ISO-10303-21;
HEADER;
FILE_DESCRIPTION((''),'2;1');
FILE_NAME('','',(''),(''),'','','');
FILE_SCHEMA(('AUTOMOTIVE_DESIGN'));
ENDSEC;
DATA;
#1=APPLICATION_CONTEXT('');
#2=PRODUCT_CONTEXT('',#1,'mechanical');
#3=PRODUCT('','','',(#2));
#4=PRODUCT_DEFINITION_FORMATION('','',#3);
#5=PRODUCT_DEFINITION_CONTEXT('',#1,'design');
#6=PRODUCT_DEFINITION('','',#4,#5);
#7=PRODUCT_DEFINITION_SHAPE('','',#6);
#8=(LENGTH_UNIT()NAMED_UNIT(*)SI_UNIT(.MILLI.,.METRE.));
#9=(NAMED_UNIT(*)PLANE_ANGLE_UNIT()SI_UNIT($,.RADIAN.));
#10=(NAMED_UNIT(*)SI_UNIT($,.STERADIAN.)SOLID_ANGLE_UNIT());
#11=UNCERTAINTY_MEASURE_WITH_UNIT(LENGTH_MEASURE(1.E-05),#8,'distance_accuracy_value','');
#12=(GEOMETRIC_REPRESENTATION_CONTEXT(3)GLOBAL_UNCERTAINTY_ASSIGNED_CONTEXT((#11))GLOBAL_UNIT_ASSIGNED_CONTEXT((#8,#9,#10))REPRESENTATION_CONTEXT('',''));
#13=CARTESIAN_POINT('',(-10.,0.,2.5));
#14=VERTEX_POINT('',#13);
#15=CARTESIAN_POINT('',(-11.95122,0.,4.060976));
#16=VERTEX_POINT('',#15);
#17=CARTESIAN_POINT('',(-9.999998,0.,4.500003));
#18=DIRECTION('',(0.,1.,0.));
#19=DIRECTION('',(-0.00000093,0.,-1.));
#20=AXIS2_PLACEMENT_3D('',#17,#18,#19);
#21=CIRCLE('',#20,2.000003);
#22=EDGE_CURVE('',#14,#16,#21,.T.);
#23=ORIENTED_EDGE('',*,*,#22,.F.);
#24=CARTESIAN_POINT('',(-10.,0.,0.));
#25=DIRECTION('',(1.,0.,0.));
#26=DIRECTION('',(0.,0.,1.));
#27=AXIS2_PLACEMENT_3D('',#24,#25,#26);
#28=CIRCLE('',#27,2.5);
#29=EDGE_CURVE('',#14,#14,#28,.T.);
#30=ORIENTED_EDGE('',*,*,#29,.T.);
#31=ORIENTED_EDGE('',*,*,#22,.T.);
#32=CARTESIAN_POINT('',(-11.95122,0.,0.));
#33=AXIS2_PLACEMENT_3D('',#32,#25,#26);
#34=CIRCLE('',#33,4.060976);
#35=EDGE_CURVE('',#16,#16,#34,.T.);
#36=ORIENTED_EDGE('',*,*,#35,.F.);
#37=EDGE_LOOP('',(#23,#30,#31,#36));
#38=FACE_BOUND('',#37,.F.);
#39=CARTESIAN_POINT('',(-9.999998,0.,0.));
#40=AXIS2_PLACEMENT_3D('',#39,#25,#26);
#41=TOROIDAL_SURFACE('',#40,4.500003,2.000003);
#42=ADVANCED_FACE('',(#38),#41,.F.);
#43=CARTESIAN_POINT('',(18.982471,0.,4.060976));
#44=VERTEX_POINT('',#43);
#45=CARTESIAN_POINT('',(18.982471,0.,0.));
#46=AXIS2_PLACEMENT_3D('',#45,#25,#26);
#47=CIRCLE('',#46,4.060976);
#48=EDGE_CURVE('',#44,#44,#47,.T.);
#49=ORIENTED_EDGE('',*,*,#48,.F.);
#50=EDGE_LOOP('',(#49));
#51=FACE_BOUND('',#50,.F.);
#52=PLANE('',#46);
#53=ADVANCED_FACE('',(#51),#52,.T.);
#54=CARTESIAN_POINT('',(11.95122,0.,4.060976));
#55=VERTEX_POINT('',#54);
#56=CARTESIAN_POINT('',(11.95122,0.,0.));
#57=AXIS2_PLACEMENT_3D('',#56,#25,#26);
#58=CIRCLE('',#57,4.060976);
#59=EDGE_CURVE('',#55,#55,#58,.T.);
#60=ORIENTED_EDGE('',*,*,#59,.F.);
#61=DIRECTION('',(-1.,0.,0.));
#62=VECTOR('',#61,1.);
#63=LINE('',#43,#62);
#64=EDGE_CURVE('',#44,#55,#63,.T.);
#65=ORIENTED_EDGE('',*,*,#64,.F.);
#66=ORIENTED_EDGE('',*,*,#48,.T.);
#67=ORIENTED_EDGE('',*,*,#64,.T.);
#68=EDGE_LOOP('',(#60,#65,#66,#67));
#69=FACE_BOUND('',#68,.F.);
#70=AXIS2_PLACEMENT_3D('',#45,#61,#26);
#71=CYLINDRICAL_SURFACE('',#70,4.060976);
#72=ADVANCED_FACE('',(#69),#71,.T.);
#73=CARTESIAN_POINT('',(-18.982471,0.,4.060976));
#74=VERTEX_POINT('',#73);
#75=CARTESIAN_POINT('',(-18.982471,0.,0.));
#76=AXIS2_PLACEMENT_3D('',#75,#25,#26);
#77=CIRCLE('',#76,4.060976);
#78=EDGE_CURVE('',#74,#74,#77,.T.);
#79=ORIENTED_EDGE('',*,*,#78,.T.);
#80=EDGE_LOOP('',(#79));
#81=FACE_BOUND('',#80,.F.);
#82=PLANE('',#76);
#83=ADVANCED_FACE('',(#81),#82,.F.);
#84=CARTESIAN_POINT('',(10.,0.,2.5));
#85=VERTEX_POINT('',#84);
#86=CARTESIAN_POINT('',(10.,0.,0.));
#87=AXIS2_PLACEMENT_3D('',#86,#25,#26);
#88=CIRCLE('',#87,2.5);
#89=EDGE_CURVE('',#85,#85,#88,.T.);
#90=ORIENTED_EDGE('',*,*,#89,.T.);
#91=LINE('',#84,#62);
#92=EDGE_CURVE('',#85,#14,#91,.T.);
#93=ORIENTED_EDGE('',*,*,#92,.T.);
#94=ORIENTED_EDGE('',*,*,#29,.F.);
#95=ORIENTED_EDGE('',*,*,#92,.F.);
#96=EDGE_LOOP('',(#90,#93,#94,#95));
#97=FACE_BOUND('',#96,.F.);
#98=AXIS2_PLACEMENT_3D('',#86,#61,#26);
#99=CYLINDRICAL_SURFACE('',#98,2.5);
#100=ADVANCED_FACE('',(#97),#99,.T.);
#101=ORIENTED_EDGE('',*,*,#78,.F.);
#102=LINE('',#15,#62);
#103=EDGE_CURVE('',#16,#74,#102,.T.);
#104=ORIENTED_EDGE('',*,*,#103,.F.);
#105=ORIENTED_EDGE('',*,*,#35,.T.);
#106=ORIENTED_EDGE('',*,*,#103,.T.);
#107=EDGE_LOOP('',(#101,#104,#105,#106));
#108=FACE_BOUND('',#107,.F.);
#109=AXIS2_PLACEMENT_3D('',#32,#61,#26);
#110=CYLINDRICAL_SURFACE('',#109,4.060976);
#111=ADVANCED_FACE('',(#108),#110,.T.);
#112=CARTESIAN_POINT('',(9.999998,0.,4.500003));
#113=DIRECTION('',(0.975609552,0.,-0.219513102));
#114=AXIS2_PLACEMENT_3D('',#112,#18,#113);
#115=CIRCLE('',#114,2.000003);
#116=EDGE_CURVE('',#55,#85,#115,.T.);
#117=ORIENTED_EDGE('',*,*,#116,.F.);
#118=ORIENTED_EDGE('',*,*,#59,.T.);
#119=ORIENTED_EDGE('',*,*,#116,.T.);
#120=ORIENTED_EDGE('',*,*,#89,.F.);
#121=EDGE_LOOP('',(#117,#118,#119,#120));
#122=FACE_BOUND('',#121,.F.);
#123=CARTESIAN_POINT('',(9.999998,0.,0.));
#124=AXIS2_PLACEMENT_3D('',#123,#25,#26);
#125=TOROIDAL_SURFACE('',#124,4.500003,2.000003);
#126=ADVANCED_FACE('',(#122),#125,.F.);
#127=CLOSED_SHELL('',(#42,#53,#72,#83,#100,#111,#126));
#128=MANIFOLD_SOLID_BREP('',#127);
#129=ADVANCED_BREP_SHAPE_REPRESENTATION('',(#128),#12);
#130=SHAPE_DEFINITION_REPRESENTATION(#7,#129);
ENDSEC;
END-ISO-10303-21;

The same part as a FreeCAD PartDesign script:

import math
import FreeCAD as App
import Part
import Sketcher
from FreeCAD import Vector
Q = App.Units.Quantity

doc = App.newDocument("Part")
body = doc.addObject("PartDesign::Body", "Body")

sketch1 = body.newObject("Sketcher::SketchObject", "Sketch")
sketch1.AttachmentSupport = (doc.getObject("XZ_Plane"), [""])
sketch1.MapMode = "FlatFace"
sketch1.addGeometry([
    Part.LineSegment(Vector(10, 2.5, 0), Vector(-10, 2.5, 0)),
    Part.ArcOfCircle(Part.Circle(Vector(-10, 4.5, 0), Vector(0, 0, 1), 2), math.radians(-167), math.radians(-90)),
    Part.LineSegment(Vector(-12, 4.1, 0), Vector(-19, 4.1, 0)),
    Part.LineSegment(Vector(-19, 4.1, 0), Vector(-19, 0, 0)),
    Part.LineSegment(Vector(-19, 0, 0), Vector(19, 0, 0)),
    Part.LineSegment(Vector(19, 0, 0), Vector(19, 4.1, 0)),
    Part.LineSegment(Vector(19, 4.1, 0), Vector(12, 4.1, 0)),
    Part.ArcOfCircle(Part.Circle(Vector(10, 4.5, 0), Vector(0, 0, 1), 2), math.radians(-90), math.radians(-13)),
], False)
sketch1.addConstraint([
    Sketcher.Constraint("Tangent", 0, 2, 1, 2),
    Sketcher.Constraint("Coincident", 1, 1, 2, 1),
    Sketcher.Constraint("Coincident", 2, 2, 3, 1),
    Sketcher.Constraint("Coincident", 3, 2, 4, 1),
    Sketcher.Constraint("Coincident", 4, 2, 5, 1),
    Sketcher.Constraint("Coincident", 5, 2, 6, 1),
    Sketcher.Constraint("Coincident", 6, 2, 7, 2),
    Sketcher.Constraint("Tangent", 7, 1, 0, 1),
    Sketcher.Constraint("Horizontal", 0),
    Sketcher.Constraint("Horizontal", 2),
    Sketcher.Constraint("Vertical", 3),
    Sketcher.Constraint("Horizontal", 4),
    Sketcher.Constraint("Vertical", 5),
    Sketcher.Constraint("Horizontal", 6),
    Sketcher.Constraint("Equal", 1, 7),
    Sketcher.Constraint("Symmetric", 3, 2, 4, 2, -1, 1),
    Sketcher.Constraint("Symmetric", 1, 1, 6, 2, -2),
    Sketcher.Constraint("DistanceX", 0, 2, 0, 1, Q("20 mm")),
    Sketcher.Constraint("DistanceY", -1, 1, 0, 2, Q("2.5 mm")),
    Sketcher.Constraint("Radius", 1, Q("2.000003 mm")),
    Sketcher.Constraint("DistanceX", 2, 2, 2, 1, Q("7.031251 mm")),
    Sketcher.Constraint("DistanceX", 4, 1, 4, 2, Q("37.964942 mm")),
])
revolution = body.newObject("PartDesign::Revolution", "Revolution")
revolution.Profile = sketch1
revolution.ReferenceAxis = (sketch1, ["H_Axis"])
revolution.Angle = 360

doc.recompute()
